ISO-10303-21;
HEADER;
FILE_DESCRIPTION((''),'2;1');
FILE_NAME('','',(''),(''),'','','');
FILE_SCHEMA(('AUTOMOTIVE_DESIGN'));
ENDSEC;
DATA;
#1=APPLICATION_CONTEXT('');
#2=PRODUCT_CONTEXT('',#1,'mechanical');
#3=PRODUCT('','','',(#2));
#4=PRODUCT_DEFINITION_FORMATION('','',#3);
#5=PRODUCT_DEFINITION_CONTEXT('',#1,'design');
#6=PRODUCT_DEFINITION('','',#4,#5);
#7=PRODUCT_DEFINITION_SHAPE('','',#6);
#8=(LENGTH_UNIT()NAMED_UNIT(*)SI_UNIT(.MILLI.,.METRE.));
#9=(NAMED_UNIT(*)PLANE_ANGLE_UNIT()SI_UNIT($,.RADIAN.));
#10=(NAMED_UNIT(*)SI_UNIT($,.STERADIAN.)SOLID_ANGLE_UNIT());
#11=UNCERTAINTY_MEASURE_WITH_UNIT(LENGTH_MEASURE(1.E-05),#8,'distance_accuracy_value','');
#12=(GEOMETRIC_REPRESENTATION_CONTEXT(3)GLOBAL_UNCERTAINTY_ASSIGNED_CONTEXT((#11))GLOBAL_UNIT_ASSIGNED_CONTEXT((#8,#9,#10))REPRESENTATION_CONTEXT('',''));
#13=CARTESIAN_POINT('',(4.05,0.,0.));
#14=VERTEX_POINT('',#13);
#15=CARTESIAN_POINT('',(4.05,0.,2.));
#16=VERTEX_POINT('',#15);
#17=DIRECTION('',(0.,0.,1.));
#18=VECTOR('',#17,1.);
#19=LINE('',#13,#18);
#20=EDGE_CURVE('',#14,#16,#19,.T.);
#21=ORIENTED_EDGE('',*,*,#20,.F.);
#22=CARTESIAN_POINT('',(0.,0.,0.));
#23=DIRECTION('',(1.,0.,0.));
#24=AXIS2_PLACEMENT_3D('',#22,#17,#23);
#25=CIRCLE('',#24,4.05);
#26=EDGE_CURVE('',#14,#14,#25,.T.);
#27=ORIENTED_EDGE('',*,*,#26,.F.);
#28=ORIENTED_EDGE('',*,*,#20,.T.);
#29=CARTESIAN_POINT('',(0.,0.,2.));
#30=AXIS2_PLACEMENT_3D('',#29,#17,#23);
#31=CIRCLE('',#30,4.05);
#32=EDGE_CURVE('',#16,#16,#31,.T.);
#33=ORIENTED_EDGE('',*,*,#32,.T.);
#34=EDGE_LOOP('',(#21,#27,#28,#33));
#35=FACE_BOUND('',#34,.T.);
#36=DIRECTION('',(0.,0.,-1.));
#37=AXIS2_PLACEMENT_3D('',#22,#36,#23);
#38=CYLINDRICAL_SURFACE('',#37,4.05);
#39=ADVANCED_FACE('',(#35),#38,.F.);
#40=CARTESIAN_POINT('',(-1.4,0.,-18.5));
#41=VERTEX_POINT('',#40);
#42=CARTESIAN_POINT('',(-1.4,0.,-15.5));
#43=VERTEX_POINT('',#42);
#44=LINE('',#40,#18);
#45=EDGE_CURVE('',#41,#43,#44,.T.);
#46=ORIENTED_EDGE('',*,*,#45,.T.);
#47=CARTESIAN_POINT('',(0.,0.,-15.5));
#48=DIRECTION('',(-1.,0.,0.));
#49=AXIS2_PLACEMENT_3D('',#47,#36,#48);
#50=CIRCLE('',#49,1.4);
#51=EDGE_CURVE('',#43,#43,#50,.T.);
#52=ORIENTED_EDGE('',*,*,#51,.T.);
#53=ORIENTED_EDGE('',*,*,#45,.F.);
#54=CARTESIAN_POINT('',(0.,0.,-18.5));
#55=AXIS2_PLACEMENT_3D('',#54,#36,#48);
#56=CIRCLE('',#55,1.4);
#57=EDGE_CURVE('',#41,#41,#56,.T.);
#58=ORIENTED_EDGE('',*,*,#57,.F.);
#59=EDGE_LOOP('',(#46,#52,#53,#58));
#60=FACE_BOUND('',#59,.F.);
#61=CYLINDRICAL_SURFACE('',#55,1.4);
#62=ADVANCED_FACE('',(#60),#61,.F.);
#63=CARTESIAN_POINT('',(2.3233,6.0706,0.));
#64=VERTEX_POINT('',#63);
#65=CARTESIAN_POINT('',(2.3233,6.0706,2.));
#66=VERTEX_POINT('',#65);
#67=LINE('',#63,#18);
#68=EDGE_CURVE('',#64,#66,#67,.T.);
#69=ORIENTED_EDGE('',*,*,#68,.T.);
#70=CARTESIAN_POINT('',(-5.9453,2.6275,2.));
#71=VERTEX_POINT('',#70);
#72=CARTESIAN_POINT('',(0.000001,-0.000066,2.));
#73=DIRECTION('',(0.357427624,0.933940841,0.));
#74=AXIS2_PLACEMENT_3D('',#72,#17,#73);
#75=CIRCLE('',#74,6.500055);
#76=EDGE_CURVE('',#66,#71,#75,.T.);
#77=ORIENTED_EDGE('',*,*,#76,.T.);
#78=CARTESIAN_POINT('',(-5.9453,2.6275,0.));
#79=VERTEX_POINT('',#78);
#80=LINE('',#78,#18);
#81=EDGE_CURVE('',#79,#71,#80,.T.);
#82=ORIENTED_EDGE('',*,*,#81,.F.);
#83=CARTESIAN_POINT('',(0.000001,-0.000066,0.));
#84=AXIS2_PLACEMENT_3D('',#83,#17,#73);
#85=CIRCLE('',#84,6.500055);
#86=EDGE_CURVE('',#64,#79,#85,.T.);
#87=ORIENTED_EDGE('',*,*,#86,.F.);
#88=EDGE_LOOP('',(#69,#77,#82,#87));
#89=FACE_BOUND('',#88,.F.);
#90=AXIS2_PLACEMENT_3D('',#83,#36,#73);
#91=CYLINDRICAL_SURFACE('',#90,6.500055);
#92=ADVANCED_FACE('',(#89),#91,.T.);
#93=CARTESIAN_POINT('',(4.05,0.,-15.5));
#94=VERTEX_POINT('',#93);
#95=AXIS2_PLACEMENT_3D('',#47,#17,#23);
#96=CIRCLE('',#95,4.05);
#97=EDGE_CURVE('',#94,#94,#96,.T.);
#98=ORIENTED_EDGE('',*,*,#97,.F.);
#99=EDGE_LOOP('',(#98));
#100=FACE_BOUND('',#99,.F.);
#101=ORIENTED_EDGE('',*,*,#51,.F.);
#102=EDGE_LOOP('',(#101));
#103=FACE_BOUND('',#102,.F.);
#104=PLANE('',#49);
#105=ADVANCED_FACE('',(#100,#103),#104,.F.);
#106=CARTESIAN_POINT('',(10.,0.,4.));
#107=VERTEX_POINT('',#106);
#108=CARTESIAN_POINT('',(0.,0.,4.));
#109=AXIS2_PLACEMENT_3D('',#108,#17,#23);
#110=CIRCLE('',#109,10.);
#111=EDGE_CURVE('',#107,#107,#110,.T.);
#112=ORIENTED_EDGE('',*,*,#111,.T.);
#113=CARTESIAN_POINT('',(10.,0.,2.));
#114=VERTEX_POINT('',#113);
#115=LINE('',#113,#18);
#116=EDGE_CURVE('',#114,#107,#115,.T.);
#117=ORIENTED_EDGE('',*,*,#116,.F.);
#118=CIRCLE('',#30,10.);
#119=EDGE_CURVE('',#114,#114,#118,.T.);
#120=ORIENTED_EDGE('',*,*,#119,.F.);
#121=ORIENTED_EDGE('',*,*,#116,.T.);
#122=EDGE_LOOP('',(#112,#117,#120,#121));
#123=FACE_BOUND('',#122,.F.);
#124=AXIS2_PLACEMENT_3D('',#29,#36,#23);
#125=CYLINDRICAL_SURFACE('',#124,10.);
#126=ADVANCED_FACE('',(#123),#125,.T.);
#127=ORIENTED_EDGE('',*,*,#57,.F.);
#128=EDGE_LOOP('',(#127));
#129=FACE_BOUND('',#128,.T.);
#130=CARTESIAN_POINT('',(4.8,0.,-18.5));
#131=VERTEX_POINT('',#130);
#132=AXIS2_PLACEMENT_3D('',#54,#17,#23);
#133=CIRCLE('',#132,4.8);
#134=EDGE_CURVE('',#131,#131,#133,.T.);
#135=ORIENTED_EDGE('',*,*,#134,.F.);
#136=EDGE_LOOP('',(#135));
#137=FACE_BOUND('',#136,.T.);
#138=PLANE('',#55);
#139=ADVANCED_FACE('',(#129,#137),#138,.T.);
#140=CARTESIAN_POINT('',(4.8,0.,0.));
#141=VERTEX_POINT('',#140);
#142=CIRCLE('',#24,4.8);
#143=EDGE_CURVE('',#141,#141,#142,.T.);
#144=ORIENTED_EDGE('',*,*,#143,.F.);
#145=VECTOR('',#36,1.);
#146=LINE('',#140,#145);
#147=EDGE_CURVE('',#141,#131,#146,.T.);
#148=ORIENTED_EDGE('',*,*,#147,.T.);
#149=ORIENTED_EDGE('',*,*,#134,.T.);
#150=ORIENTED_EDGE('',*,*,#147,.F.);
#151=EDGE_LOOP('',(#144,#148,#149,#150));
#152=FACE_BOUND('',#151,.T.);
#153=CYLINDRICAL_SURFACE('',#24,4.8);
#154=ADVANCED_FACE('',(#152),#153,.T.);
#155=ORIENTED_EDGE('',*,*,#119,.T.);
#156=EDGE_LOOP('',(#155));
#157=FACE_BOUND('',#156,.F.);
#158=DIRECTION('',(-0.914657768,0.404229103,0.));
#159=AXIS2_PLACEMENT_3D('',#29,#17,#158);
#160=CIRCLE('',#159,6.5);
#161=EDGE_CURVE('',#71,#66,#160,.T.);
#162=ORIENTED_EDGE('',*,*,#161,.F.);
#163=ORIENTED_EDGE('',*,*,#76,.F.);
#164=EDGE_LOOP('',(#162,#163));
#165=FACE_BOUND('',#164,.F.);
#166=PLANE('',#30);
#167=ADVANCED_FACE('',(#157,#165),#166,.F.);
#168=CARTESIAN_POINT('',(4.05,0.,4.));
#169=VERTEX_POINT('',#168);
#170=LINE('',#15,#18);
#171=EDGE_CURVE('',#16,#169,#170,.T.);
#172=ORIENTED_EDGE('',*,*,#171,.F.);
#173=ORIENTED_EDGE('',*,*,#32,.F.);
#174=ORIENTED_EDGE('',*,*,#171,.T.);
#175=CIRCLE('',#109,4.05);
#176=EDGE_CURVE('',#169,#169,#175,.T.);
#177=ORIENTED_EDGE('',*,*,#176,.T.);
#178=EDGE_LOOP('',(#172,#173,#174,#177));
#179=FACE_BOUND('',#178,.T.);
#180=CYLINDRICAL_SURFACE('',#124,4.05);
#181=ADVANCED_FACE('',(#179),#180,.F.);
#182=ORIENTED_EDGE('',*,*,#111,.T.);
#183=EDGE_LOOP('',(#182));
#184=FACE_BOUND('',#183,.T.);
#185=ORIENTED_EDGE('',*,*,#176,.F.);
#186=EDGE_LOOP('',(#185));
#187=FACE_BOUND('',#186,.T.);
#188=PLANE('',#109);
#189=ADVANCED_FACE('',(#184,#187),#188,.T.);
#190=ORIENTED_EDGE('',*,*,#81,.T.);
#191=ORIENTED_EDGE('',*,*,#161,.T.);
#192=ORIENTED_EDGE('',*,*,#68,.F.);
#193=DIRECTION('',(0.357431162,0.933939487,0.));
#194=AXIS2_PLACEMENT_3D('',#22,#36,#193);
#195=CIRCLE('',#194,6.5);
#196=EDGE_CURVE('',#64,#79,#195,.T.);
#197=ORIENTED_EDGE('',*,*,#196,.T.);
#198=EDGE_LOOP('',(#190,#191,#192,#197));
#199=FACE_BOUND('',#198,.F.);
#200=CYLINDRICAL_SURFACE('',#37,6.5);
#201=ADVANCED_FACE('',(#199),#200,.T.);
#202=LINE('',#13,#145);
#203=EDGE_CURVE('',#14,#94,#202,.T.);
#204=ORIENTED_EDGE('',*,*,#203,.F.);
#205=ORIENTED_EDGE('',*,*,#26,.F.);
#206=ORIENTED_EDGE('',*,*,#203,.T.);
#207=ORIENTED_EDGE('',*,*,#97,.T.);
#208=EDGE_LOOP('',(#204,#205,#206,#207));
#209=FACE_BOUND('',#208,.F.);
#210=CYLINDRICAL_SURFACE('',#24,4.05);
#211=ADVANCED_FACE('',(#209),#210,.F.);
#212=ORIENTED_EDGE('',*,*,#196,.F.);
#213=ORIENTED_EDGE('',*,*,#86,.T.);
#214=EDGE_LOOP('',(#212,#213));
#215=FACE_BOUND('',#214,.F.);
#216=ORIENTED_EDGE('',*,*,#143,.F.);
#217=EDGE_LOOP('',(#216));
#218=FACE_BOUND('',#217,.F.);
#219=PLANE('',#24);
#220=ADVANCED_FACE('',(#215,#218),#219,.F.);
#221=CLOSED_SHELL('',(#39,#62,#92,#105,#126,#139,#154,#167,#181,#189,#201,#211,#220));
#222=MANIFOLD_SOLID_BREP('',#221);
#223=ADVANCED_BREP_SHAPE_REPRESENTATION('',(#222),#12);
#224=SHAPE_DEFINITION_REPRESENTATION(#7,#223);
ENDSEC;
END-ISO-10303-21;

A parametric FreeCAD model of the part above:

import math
import FreeCAD as App
import Part
import Sketcher

V = App.Vector
Q = App.Units.Quantity

doc = App.newDocument("Part")
params = doc.addObject("Spreadsheet::Sheet", "Params")
for row, (alias, value) in enumerate([
    ("sketch1_diameter", "8.1 mm"),
    ("sketch1_diameter2", "9.6 mm"),
    ("pad1_length", "18.5 mm"),
    ("sketch2_diameter", "8.1 mm"),
    ("sketch2_radius", "6.5 mm"),
    ("pad2_length", "2 mm"),
    ("sketch3_diameter", "2.8 mm"),
    ("sketch3_diameter2", "8.1 mm"),
    ("pad3_length", "3 mm"),
    ("sketch4_diameter", "20 mm"),
    ("sketch4_diameter2", "8.1 mm"),
    ("pad4_length", "2 mm"),
], start=1):
    params.set(f"A{row}", alias)
    params.set(f"B{row}", "=" + value)
    params.setAlias(f"B{row}", alias)

body = doc.addObject("PartDesign::Body", "Body")

# Sketch on XY plane
sketch1 = body.newObject("Sketcher::SketchObject", "Sketch")
sketch1.AttachmentSupport = (doc.getObject("XY_Plane"), [""])
sketch1.MapMode = "FlatFace"
sketch1.addGeometry([
    Part.Circle(V(0, 0, 0), V(0, 0, 1), 4.8),
    Part.Circle(V(0, 0, 0), V(0, 0, 1), 4.05),
], False)
sketch1.addConstraint([
    Sketcher.Constraint("Coincident", 0, 3, -1, 1),
    Sketcher.Constraint("Coincident", 1, 3, -1, 1),
    Sketcher.Constraint("Diameter", 1, Q("8.1 mm")),
    Sketcher.Constraint("Diameter", 0, Q("9.6 mm")),
])
sketch1.setExpression("Constraints[2]", "Params.sketch1_diameter")
sketch1.setExpression("Constraints[3]", "Params.sketch1_diameter2")
pad1 = body.newObject("PartDesign::Pad", "Pad")
pad1.Profile = sketch1
pad1.setExpression("Length", "Params.pad1_length")
pad1.Reversed = True

# Sketch on XY plane
sketch2 = body.newObject("Sketcher::SketchObject", "Sketch001")
sketch2.AttachmentSupport = (doc.getObject("XY_Plane"), [""])
sketch2.MapMode = "FlatFace"
sketch2.addGeometry([
    Part.ArcOfCircle(Part.Circle(V(0, 0, 0), V(0, 0, 1), 6.5), math.radians(69.057482), math.radians(156.157172)),
    Part.ArcOfCircle(Part.Circle(V(0, 0, 0), V(0, 0, 1), 6.5), math.radians(156.157172), math.radians(429.057482)),
    Part.Circle(V(0, 0, 0), V(0, 0, 1), 4.05),
], False)
sketch2.addConstraint([
    Sketcher.Constraint("Tangent", 0, 1, 1, 2),
    Sketcher.Constraint("Coincident", 1, 1, 0, 2),
    Sketcher.Constraint("Coincident", 0, 3, -1, 1),
    Sketcher.Constraint("Coincident", 2, 3, -1, 1),
    Sketcher.Constraint("Diameter", 2, Q("8.1 mm")),
    Sketcher.Constraint("Radius", 0, Q("6.5 mm")),
    Sketcher.Constraint("DistanceY", 1, 1, 0, 1, Q("3.443 mm")),
    Sketcher.Constraint("DistanceX", -1, 1, 0, 1, Q("2.3233 mm")),
])
sketch2.setExpression("Constraints[4]", "Params.sketch2_diameter")
sketch2.setExpression("Constraints[5]", "Params.sketch2_radius")
pad2 = body.newObject("PartDesign::Pad", "Pad001")
pad2.Profile = sketch2
pad2.setExpression("Length", "Params.pad2_length")

# Sketch on XY plane
sketch3 = body.newObject("Sketcher::SketchObject", "Sketch002")
sketch3.AttachmentSupport = (doc.getObject("XY_Plane"), [""])
sketch3.MapMode = "FlatFace"
sketch3.AttachmentOffset = App.Placement(V(0, 0, -18.5), App.Rotation())
sketch3.addGeometry([
    Part.Circle(V(0, 0, 0), V(0, 0, 1), 4.05),
    Part.Circle(V(0, 0, 0), V(0, 0, 1), 1.4),
], False)
sketch3.addConstraint([
    Sketcher.Constraint("Coincident", 0, 3, -1, 1),
    Sketcher.Constraint("Coincident", 1, 3, -1, 1),
    Sketcher.Constraint("Diameter", 1, Q("2.8 mm")),
    Sketcher.Constraint("Diameter", 0, Q("8.1 mm")),
])
sketch3.setExpression("Constraints[2]", "Params.sketch3_diameter")
sketch3.setExpression("Constraints[3]", "Params.sketch3_diameter2")
pad3 = body.newObject("PartDesign::Pad", "Pad002")
pad3.Profile = sketch3
pad3.setExpression("Length", "Params.pad3_length")

# Sketch on XY plane
sketch4 = body.newObject("Sketcher::SketchObject", "Sketch003")
sketch4.AttachmentSupport = (doc.getObject("XY_Plane"), [""])
sketch4.MapMode = "FlatFace"
sketch4.AttachmentOffset = App.Placement(V(0, 0, 2), App.Rotation())
sketch4.addGeometry([
    Part.Circle(V(0, 0, 0), V(0, 0, 1), 10),
    Part.Circle(V(0, 0, 0), V(0, 0, 1), 4.05),
], False)
sketch4.addConstraint([
    Sketcher.Constraint("Coincident", 0, 3, -1, 1),
    Sketcher.Constraint("Coincident", 1, 3, -1, 1),
    Sketcher.Constraint("Diameter", 0, Q("20 mm")),
    Sketcher.Constraint("Diameter", 1, Q("8.1 mm")),
])
sketch4.setExpression("Constraints[2]", "Params.sketch4_diameter")
sketch4.setExpression("Constraints[3]", "Params.sketch4_diameter2")
pad4 = body.newObject("PartDesign::Pad", "Pad003")
pad4.Profile = sketch4
pad4.setExpression("Length", "Params.pad4_length")

doc.recompute()
